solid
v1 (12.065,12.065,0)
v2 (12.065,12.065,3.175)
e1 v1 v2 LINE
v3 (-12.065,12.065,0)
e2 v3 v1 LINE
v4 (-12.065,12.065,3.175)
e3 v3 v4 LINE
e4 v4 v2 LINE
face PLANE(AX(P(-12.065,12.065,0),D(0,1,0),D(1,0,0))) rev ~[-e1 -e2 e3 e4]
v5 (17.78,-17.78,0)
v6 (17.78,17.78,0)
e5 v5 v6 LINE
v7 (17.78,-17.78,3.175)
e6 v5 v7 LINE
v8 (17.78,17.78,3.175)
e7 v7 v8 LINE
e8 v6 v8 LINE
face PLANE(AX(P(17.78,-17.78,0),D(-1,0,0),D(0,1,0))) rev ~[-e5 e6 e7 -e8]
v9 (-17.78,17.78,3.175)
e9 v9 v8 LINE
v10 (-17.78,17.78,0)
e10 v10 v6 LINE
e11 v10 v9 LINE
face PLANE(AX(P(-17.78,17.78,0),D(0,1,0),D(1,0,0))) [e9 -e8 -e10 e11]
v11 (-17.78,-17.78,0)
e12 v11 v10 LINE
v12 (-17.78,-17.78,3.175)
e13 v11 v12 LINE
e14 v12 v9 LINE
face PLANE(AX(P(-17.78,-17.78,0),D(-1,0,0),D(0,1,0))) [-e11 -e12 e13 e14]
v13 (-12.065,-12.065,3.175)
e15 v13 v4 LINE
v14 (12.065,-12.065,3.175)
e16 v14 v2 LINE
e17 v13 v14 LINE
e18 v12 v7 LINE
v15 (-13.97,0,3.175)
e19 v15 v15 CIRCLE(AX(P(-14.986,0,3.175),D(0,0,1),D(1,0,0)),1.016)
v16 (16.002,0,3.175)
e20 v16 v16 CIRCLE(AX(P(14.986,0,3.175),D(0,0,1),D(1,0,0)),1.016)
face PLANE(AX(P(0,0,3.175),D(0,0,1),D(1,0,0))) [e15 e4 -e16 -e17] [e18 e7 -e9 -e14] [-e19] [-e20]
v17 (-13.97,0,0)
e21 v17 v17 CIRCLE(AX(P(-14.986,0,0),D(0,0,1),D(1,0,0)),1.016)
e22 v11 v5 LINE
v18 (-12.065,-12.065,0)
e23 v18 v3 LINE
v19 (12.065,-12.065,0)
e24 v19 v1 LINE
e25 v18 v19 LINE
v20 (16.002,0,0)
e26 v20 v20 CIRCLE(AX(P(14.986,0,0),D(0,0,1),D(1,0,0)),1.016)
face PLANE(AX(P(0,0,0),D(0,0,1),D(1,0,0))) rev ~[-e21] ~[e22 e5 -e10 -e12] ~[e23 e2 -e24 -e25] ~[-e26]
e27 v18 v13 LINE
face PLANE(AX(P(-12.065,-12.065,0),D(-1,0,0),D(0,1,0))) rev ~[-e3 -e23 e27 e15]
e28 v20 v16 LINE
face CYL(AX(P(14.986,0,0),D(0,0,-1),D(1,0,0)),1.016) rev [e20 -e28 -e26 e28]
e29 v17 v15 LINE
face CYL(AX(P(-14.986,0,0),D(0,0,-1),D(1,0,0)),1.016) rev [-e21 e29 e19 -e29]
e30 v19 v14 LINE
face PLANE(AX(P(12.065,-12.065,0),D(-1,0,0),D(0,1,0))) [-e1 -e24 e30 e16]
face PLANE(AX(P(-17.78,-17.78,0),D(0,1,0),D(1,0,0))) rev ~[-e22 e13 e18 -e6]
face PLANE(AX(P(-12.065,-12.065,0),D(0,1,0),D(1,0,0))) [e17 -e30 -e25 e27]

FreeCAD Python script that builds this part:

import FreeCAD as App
import Part
import Sketcher

V = App.Vector
Q = App.Units.Quantity


def add_polygon(sketch, points):
    """Adds a closed chain of lines whose ends are joined by coincident constraints."""
    first, n = sketch.GeometryCount, len(points)
    for a, b in zip(points, points[1:] + points[:1]):
        sketch.addGeometry(Part.LineSegment(App.Vector(*a, 0), App.Vector(*b, 0)), False)
    for i in range(n):
        sketch.addConstraint(Sketcher.Constraint("Coincident", first + i, 2, first + (i + 1) % n, 1))

doc = App.newDocument("Part")
body = doc.addObject("PartDesign::Body", "Body")

sketch1 = body.newObject("Sketcher::SketchObject", "Sketch")
sketch1.AttachmentSupport = (doc.getObject("XY_Plane"), [""])
sketch1.MapMode = "FlatFace"
add_polygon(sketch1, [(-17.78, 17.78), (-17.78, -17.78), (17.78, -17.78), (17.78, 17.78)])
sketch1.addGeometry(Part.Circle(V(-14.986, 0, 0), V(0, 0, 1), 1.016), False)
add_polygon(sketch1, [(12.065, -12.065), (-12.065, -12.065), (-12.065, 12.065), (12.065, 12.065)])
sketch1.addGeometry(Part.Circle(V(14.986, 0, 0), V(0, 0, 1), 1.016), False)
sketch1.addConstraint([
    Sketcher.Constraint("Vertical", 0),
    Sketcher.Constraint("Horizontal", 1),
    Sketcher.Constraint("Vertical", 2),
    Sketcher.Constraint("Horizontal", 3),
    Sketcher.Constraint("Horizontal", 5),
    Sketcher.Constraint("Vertical", 6),
    Sketcher.Constraint("Horizontal", 7),
    Sketcher.Constraint("Vertical", 8),
    Sketcher.Constraint("Equal", 4, 9),
    Sketcher.Constraint("Symmetric", 4, 3, 9, 3, -1, 1),
    Sketcher.Constraint("Symmetric", 0, 2, 2, 2, -1, 1),
    Sketcher.Constraint("Symmetric", 5, 2, 7, 2, -1, 1),
    Sketcher.Constraint("PointOnObject", 4, 3, -1),
    Sketcher.Constraint("Equal", 3, 0),
    Sketcher.Constraint("Equal", 7, 6),
    Sketcher.Constraint("Diameter", 4, Q("0.08 in")),
    Sketcher.Constraint("DistanceX", 1, 1, 1, 2, Q("1.4 in")),
    Sketcher.Constraint("DistanceX", 5, 2, 5, 1, Q("0.95 in")),
    Sketcher.Constraint("DistanceX", 4, 3, -1, 1, Q("0.59 in")),
])
pad1 = body.newObject("PartDesign::Pad", "Pad")
pad1.Profile = sketch1
pad1.Length = Q("0.125 in")

doc.recompute()
